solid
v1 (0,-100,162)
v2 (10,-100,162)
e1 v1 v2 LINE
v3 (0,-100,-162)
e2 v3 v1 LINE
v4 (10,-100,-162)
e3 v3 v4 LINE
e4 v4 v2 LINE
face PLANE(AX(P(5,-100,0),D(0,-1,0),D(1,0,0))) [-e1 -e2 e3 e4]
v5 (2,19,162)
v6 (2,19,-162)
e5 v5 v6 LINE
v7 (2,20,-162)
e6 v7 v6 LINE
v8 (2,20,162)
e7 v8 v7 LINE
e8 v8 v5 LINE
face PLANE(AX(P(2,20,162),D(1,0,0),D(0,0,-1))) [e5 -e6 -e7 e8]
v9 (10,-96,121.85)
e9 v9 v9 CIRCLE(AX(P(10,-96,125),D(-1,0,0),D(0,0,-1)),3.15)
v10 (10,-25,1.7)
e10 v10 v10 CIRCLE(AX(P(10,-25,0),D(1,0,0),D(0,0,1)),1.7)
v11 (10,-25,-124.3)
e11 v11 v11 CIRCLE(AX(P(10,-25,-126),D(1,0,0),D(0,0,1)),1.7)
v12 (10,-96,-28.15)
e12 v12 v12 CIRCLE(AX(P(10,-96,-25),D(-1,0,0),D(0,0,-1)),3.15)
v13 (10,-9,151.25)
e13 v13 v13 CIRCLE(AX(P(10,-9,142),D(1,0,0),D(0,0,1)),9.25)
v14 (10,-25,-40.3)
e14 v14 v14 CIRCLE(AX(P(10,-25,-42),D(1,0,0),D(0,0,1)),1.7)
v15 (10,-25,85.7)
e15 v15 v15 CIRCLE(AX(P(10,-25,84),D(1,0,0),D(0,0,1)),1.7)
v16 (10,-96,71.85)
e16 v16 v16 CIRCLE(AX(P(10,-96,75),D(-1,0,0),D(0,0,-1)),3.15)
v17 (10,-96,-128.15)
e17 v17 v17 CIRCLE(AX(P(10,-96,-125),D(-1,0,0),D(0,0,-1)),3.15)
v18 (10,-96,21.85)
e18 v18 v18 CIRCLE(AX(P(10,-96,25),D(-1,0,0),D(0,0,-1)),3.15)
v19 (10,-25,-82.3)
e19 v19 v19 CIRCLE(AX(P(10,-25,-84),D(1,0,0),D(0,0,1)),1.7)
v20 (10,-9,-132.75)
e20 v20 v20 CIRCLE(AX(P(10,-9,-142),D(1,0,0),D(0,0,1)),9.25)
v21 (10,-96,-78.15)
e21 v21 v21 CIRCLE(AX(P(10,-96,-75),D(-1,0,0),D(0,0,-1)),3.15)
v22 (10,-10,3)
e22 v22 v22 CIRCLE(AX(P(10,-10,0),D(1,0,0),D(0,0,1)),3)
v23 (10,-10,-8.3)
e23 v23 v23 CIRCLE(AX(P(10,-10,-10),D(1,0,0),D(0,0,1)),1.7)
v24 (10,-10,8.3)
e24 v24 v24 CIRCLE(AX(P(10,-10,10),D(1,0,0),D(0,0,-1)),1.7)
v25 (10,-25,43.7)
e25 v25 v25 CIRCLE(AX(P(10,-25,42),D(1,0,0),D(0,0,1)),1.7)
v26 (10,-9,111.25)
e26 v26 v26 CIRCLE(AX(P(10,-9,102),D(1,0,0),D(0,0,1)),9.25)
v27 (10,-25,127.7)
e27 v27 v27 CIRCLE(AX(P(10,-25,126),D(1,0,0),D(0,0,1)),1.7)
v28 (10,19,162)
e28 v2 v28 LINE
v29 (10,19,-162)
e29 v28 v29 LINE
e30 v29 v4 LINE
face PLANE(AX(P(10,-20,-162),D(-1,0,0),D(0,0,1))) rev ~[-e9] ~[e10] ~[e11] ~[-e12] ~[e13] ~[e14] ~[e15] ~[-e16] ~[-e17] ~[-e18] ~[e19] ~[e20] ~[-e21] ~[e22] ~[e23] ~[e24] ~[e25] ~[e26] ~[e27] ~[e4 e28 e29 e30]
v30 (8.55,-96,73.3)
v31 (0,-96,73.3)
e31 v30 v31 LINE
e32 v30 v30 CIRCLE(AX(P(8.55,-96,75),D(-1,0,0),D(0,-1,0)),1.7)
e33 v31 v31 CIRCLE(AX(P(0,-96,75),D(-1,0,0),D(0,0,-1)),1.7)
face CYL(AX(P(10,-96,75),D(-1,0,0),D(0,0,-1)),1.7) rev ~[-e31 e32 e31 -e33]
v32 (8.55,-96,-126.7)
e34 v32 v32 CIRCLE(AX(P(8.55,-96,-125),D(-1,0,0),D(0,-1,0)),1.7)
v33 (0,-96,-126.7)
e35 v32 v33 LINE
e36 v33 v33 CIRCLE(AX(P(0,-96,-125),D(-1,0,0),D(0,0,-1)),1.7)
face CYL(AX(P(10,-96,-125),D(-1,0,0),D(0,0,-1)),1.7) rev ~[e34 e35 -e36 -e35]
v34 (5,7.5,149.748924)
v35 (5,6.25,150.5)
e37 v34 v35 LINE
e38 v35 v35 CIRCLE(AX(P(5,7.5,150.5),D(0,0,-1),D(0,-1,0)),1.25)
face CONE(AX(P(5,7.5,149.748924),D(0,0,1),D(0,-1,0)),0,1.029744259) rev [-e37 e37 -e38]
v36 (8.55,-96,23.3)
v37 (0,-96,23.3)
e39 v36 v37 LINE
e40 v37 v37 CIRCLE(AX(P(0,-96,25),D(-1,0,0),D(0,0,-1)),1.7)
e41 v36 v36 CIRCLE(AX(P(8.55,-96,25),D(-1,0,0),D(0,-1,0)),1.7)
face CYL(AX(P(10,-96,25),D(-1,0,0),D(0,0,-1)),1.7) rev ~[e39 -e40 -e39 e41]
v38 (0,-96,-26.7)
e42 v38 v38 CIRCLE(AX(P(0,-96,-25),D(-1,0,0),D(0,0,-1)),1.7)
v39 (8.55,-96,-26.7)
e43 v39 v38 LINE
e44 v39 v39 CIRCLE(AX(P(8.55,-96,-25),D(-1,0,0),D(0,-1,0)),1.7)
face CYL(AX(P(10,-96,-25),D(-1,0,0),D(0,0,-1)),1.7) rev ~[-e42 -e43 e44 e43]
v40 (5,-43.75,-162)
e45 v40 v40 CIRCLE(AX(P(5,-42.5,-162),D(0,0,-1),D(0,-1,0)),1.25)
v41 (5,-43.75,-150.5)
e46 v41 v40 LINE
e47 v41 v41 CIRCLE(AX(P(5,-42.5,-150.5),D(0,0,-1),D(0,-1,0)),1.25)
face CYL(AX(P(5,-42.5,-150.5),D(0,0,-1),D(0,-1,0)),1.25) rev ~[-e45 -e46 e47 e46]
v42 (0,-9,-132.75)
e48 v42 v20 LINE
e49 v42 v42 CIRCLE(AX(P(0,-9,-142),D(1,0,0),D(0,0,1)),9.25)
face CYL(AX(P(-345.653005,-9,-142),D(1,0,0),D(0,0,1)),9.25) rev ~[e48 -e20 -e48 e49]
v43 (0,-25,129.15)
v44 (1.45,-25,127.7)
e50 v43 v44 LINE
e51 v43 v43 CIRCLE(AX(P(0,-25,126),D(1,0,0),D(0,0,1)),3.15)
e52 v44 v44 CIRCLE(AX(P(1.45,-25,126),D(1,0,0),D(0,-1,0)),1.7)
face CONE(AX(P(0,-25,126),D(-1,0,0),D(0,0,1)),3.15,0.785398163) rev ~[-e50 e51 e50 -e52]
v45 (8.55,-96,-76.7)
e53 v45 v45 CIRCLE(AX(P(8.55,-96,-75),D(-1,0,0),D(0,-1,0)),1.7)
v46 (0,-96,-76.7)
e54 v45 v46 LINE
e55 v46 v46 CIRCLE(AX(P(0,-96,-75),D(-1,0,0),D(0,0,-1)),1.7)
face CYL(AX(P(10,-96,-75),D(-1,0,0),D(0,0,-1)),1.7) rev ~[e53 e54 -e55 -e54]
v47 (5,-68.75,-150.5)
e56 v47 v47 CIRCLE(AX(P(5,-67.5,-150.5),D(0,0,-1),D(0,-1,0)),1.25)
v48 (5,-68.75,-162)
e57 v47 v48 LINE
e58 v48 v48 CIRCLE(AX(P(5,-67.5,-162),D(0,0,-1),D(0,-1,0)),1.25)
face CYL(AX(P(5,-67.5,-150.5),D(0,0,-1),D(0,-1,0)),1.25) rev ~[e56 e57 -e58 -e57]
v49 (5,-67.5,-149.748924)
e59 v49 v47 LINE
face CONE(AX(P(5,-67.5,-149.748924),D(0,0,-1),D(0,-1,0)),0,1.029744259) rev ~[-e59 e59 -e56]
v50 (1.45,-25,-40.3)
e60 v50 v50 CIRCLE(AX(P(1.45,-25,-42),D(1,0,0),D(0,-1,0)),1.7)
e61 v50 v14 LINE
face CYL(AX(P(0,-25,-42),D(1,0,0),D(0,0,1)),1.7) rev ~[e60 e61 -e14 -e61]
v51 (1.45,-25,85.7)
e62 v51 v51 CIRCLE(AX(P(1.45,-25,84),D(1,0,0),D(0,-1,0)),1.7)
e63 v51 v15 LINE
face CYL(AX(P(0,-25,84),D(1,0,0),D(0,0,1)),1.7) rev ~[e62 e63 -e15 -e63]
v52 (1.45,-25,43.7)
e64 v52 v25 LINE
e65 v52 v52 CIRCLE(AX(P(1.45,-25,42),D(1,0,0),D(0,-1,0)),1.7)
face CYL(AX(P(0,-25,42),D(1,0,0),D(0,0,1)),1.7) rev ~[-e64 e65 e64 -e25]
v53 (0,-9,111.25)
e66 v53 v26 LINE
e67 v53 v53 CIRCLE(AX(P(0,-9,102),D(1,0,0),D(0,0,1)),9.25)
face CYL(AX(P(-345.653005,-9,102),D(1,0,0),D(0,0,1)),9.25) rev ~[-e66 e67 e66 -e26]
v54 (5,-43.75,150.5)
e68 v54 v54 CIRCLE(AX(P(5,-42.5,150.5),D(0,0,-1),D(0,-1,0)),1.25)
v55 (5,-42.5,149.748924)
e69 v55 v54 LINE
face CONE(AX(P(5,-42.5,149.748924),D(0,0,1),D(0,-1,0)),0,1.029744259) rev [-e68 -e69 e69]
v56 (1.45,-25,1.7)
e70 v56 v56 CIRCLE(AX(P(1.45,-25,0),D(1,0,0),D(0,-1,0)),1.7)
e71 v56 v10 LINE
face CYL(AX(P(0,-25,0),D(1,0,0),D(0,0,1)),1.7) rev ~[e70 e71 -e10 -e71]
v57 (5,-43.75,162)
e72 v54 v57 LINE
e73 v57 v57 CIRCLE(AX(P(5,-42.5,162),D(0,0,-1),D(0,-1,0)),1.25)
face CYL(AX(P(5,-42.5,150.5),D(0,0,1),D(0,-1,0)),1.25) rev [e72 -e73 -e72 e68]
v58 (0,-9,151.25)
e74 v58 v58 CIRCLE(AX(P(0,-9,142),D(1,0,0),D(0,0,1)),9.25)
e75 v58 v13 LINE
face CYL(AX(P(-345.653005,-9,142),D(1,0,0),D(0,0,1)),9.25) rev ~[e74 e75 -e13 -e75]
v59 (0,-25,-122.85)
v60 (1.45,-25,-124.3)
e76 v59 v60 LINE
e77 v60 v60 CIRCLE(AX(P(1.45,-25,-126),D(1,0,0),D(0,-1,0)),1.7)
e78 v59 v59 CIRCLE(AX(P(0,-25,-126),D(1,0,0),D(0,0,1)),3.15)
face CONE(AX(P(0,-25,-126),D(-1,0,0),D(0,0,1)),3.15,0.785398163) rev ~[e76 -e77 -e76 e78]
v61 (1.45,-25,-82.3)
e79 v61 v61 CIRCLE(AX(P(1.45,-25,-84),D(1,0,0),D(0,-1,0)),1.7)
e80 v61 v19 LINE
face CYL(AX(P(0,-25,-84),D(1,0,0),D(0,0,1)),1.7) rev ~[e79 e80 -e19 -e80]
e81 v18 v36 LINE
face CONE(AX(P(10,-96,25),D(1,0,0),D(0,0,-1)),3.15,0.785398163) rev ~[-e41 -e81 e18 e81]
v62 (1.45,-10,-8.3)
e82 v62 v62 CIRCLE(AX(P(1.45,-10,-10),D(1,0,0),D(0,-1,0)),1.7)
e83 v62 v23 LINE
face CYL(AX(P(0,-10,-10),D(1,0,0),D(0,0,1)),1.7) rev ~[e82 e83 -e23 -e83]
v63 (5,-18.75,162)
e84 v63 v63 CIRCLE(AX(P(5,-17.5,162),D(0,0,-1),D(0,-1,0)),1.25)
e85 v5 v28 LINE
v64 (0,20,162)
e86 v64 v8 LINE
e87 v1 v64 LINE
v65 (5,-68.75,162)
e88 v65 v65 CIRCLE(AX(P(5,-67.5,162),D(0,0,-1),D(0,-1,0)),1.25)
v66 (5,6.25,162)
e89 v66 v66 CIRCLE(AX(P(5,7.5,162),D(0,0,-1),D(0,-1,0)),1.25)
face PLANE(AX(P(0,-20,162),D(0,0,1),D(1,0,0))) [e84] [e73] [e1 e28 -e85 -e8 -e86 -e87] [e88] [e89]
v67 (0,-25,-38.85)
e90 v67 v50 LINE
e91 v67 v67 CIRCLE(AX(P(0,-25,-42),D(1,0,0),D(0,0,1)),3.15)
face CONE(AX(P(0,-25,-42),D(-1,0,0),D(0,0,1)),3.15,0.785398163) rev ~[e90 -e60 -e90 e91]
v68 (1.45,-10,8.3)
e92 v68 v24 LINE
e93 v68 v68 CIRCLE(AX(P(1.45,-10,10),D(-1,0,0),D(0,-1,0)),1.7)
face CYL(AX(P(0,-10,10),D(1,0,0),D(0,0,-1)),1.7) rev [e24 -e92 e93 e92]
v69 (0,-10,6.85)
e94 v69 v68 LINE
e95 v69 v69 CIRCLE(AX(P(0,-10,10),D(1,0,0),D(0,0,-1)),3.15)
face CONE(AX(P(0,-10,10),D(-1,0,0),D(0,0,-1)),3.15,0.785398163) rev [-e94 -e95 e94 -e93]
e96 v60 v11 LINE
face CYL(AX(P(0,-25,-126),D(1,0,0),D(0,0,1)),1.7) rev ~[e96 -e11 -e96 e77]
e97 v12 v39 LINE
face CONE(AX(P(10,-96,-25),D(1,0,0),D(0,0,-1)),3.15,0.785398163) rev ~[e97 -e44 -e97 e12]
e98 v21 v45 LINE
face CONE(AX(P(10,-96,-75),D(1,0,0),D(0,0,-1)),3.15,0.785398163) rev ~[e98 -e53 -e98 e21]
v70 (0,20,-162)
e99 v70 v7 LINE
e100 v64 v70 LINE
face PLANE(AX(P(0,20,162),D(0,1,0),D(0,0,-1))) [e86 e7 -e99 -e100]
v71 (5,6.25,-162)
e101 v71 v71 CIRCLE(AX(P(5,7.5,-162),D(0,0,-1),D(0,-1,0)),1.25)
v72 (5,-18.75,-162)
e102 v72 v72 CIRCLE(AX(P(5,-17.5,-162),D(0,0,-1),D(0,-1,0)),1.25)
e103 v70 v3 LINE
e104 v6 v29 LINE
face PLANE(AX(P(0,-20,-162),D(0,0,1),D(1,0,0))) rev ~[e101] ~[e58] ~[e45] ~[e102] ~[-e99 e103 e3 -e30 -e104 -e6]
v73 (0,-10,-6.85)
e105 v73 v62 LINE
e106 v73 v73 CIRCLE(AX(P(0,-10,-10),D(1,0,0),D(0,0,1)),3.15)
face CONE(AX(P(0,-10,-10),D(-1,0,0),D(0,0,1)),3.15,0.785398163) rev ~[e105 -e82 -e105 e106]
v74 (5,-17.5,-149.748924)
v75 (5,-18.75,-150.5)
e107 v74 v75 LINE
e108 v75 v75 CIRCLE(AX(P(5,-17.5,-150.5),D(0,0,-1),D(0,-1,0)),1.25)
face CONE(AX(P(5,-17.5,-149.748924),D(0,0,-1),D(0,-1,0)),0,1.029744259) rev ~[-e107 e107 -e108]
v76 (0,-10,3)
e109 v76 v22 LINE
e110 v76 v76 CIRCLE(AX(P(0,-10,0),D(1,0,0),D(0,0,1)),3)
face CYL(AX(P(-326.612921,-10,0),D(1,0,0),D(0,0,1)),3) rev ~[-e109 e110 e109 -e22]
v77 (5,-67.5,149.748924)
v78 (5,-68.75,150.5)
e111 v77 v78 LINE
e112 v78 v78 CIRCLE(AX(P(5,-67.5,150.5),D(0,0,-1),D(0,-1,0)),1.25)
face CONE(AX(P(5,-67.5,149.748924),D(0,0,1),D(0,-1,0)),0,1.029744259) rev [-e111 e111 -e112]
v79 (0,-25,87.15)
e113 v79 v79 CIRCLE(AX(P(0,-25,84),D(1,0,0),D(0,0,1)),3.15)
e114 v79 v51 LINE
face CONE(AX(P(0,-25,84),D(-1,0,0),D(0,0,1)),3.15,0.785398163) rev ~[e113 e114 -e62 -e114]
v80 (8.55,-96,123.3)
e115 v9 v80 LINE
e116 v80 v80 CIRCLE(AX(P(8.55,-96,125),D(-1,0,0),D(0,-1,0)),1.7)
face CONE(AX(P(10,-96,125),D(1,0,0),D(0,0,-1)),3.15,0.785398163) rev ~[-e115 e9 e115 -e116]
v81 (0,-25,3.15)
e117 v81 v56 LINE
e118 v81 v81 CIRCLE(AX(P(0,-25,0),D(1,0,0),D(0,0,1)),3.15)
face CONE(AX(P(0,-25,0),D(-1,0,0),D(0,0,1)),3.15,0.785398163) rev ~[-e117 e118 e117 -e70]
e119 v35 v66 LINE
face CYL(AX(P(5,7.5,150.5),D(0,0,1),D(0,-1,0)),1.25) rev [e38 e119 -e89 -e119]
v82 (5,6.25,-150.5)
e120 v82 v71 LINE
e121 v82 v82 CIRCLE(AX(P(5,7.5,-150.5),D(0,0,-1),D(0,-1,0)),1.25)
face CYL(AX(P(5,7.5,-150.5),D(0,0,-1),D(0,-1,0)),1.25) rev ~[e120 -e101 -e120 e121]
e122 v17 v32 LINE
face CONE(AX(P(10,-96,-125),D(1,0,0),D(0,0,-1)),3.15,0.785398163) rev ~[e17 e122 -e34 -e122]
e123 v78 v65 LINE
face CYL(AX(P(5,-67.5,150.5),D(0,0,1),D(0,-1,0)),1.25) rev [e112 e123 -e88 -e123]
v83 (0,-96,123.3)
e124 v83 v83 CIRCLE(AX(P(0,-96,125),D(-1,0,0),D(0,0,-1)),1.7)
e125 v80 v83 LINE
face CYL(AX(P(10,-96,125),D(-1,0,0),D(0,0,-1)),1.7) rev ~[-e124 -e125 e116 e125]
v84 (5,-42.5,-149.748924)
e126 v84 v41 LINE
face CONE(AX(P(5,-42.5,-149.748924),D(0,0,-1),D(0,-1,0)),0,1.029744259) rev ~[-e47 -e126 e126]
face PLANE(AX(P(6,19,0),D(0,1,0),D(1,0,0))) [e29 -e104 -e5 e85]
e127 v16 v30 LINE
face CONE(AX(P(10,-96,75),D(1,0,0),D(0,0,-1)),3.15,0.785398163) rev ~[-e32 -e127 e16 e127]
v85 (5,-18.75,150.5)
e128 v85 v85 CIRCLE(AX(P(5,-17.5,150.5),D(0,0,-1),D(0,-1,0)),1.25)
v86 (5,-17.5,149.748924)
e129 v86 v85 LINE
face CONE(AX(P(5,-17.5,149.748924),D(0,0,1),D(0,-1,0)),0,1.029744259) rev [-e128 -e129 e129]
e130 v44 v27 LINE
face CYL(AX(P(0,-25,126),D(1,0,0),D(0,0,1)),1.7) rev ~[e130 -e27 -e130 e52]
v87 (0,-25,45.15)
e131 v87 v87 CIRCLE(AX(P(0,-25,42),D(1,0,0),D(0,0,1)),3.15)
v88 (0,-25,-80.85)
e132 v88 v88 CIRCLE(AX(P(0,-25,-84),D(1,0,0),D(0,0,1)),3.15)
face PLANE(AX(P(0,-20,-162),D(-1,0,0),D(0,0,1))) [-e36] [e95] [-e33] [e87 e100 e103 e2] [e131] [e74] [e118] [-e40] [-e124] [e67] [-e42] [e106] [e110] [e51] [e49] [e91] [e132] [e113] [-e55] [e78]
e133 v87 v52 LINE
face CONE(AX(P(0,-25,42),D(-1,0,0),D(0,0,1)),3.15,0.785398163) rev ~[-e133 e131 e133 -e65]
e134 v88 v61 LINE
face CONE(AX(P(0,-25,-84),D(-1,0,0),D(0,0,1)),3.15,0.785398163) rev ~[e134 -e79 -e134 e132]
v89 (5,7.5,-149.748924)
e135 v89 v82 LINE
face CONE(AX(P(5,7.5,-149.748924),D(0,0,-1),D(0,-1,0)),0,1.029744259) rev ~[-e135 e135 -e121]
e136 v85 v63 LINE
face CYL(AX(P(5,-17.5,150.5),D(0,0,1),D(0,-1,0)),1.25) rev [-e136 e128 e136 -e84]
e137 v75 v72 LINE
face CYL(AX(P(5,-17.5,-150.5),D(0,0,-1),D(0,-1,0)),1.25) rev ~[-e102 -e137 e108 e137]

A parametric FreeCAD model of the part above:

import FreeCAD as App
import Part
import Sketcher
from FreeCAD import Vector
Q = App.Units.Quantity

doc = App.newDocument("Part")
body = doc.addObject("PartDesign::Body", "Body")

# Sketch on YZ plane
sketch1 = doc.addObject("Sketcher::SketchObject", "Sketch")
body.addObject(sketch1)
sketch1.AttachmentSupport = (doc.YZ_Plane, [""])
sketch1.MapMode = "FlatFace"
sketch1.addGeometry(Part.LineSegment(Vector(20, 162, 0), Vector(-20, 162, 0)), False)
sketch1.addGeometry(Part.LineSegment(Vector(-20, 162, 0), Vector(-20, -162, 0)), False)
sketch1.addGeometry(Part.LineSegment(Vector(-20, -162, 0), Vector(20, -162, 0)), False)
sketch1.addGeometry(Part.LineSegment(Vector(20, -162, 0), Vector(20, 162, 0)), False)
sketch1.addConstraint(Sketcher.Constraint("Coincident", 0, 2, 1, 1))
sketch1.addConstraint(Sketcher.Constraint("Coincident", 1, 2, 2, 1))
sketch1.addConstraint(Sketcher.Constraint("Coincident", 2, 2, 3, 1))
sketch1.addConstraint(Sketcher.Constraint("Coincident", 3, 2, 0, 1))
sketch1.addConstraint(Sketcher.Constraint("Horizontal", 0))
sketch1.addConstraint(Sketcher.Constraint("Vertical", 1))
sketch1.addConstraint(Sketcher.Constraint("Horizontal", 2))
sketch1.addConstraint(Sketcher.Constraint("Vertical", 3))
sketch1.addConstraint(Sketcher.Constraint("Symmetric", 0, 2, 2, 2, -1, 1))
sketch1.addConstraint(Sketcher.Constraint("DistanceX", 0, 2, 0, 1, 40.0))
sketch1.addConstraint(Sketcher.Constraint("DistanceY", 1, 2, 1, 1, 324.0))
pad1 = doc.addObject("PartDesign::Pad", "Pad")
body.addObject(pad1)
pad1.Profile = sketch1
pad1.Length = 10

# Sketch on YZ plane
sketch2 = doc.addObject("Sketcher::SketchObject", "Sketch001")
body.addObject(sketch2)
sketch2.AttachmentSupport = (doc.YZ_Plane, [""])
sketch2.MapMode = "FlatFace"
sketch2.addGeometry(Part.Circle(Vector(-10, 0, 0), Vector(0, 0, 1), 3), False)
sketch2.addConstraint(Sketcher.Constraint("PointOnObject", 0, 3, -1))
sketch2.addConstraint(Sketcher.Constraint("Diameter", 0, 6.0))
sketch2.addConstraint(Sketcher.Constraint("DistanceX", 0, 3, -1, 1, 10.0))
doc.recompute()
hole = doc.addObject("PartDesign::Hole", "Hole")
body.addObject(hole)
hole.Profile = sketch2
hole.ThreadType = "None"
hole.Diameter = 6
hole.DepthType = "ThroughAll"
hole.Reversed = True

# Sketch on YZ plane
sketch3 = doc.addObject("Sketcher::SketchObject", "Sketch002")
body.addObject(sketch3)
sketch3.AttachmentSupport = (doc.YZ_Plane, [""])
sketch3.MapMode = "FlatFace"
sketch3.addGeometry(Part.Circle(Vector(-10, -10, 0), Vector(0, 0, 1), 1.7), False)
sketch3.addConstraint(Sketcher.Constraint("Diameter", 0, 3.4))
sketch3.addConstraint(Sketcher.Constraint("DistanceX", 0, 3, -1, 1, 10.0))
sketch3.addConstraint(Sketcher.Constraint("DistanceY", 0, 3, -1, 1, 10.0))
doc.recompute()
hole2 = doc.addObject("PartDesign::Hole", "Hole001")
body.addObject(hole2)
hole2.Profile = sketch3
hole2.ThreadType = "None"
hole2.Diameter = 3.4
hole2.DepthType = "ThroughAll"
hole2.HoleCutType = "Countersink"
hole2.HoleCutDiameter = 6.3
hole2.HoleCutCountersinkAngle = 90
hole2.Reversed = True
doc.recompute()

mirrored = doc.addObject("PartDesign::Mirrored", "Mirrored")
body.addObject(mirrored)
mirrored.Originals = [hole2]
mirrored.MirrorPlane = (doc.XY_Plane, [""])
body.Tip = mirrored

# Sketch on XZ plane
sketch4 = doc.addObject("Sketcher::SketchObject", "Sketch003")
body.addObject(sketch4)
sketch4.AttachmentSupport = (doc.XZ_Plane, [""])
sketch4.MapMode = "FlatFace"
sketch4.AttachmentOffset = App.Placement(Vector(0, 0, 20), App.Rotation())
sketch4.addGeometry(Part.LineSegment(Vector(0, 162, 0), Vector(0, -162, 0)), False)
sketch4.addGeometry(Part.LineSegment(Vector(0, -162, 0), Vector(10, -162, 0)), False)
sketch4.addGeometry(Part.LineSegment(Vector(10, -162, 0), Vector(10, 162, 0)), False)
sketch4.addGeometry(Part.LineSegment(Vector(10, 162, 0), Vector(0, 162, 0)), False)
sketch4.addConstraint(Sketcher.Constraint("Coincident", 0, 2, 1, 1))
sketch4.addConstraint(Sketcher.Constraint("Coincident", 1, 2, 2, 1))
sketch4.addConstraint(Sketcher.Constraint("Coincident", 2, 2, 3, 1))
sketch4.addConstraint(Sketcher.Constraint("Coincident", 3, 2, 0, 1))
sketch4.addConstraint(Sketcher.Constraint("Vertical", 0))
sketch4.addConstraint(Sketcher.Constraint("Horizontal", 1))
sketch4.addConstraint(Sketcher.Constraint("Vertical", 2))
sketch4.addConstraint(Sketcher.Constraint("Horizontal", 3))
sketch4.addConstraint(Sketcher.Constraint("Symmetric", 0, 2, 3, 2, -1, 1))
sketch4.addConstraint(Sketcher.Constraint("DistanceX", 1, 1, 1, 2, 10.0))
sketch4.addConstraint(Sketcher.Constraint("DistanceY", 0, 2, 0, 1, 324.0))
pad2 = doc.addObject("PartDesign::Pad", "Pad001")
body.addObject(pad2)
pad2.Profile = sketch4
pad2.Length = 80

# Sketch on YZ plane
sketch5 = doc.addObject("Sketcher::SketchObject", "Sketch004")
body.addObject(sketch5)
sketch5.AttachmentSupport = (doc.YZ_Plane, [""])
sketch5.MapMode = "FlatFace"
sketch5.AttachmentOffset = App.Placement(Vector(0, 0, 10), App.Rotation())
sketch5.addGeometry(Part.Circle(Vector(-96, 125, 0), Vector(0, 0, 1), 1.7), False)
sketch5.addGeometry(Part.Circle(Vector(-96, 75, 0), Vector(0, 0, 1), 1.7), False)
sketch5.addGeometry(Part.Circle(Vector(-96, 25, 0), Vector(0, 0, 1), 1.7), False)
sketch5.addGeometry(Part.Circle(Vector(-96, -25, 0), Vector(0, 0, 1), 1.7), False)
sketch5.addGeometry(Part.Circle(Vector(-96, -75, 0), Vector(0, 0, 1), 1.7), False)
sketch5.addGeometry(Part.Circle(Vector(-96, -125, 0), Vector(0, 0, 1), 1.7), False)
sketch5.addConstraint(Sketcher.Constraint("Equal", 0, 1))
sketch5.addConstraint(Sketcher.Constraint("Equal", 1, 2))
sketch5.addConstraint(Sketcher.Constraint("Equal", 2, 3))
sketch5.addConstraint(Sketcher.Constraint("Equal", 3, 4))
sketch5.addConstraint(Sketcher.Constraint("Equal", 4, 5))
sketch5.addConstraint(Sketcher.Constraint("Symmetric", 2, 3, 3, 3, -1))
sketch5.addConstraint(Sketcher.Constraint("Symmetric", 1, 3, 4, 3, -1))
sketch5.addConstraint(Sketcher.Constraint("Symmetric", 0, 3, 5, 3, -1))
sketch5.addConstraint(Sketcher.Constraint("Vertical", 0, 3, 1, 3))
sketch5.addConstraint(Sketcher.Constraint("Vertical", 1, 3, 2, 3))
sketch5.addConstraint(Sketcher.Constraint("Diameter", 0, 3.4))
sketch5.addConstraint(Sketcher.Constraint("DistanceX", 0, 3, -1, 1, 96.0))
sketch5.addConstraint(Sketcher.Constraint("DistanceY", -1, 1, 0, 3, 125.0))
sketch5.addConstraint(Sketcher.Constraint("DistanceY", -1, 1, 1, 3, 75.0))
sketch5.addConstraint(Sketcher.Constraint("DistanceY", -1, 1, 2, 3, 25.0))
doc.recompute()
hole3 = doc.addObject("PartDesign::Hole", "Hole002")
body.addObject(hole3)
hole3.Profile = sketch5
hole3.ThreadType = "None"
hole3.Diameter = 3.4
hole3.DepthType = "Dimension"
hole3.Depth = 11.5
hole3.DrillPoint = "Angled"
hole3.DrillPointAngle = 118
hole3.HoleCutType = "Countersink"
hole3.HoleCutDiameter = 6.3
hole3.HoleCutCountersinkAngle = 90

# Sketch on YZ plane
sketch6 = doc.addObject("Sketcher::SketchObject", "Sketch005")
body.addObject(sketch6)
sketch6.AttachmentSupport = (doc.YZ_Plane, [""])
sketch6.MapMode = "FlatFace"
sketch6.AttachmentOffset = App.Placement(Vector(0, 0, 5), App.Rotation())
sketch6.addGeometry(Part.LineSegment(Vector(7.5, 149.7, 0), Vector(7.5, 162, 0)), False)
sketch6.addGeometry(Part.LineSegment(Vector(7.5, 162, 0), Vector(6.2, 162, 0)), False)
sketch6.addGeometry(Part.LineSegment(Vector(6.2, 162, 0), Vector(6.2, 150.5, 0)), False)
sketch6.addGeometry(Part.LineSegment(Vector(6.2, 150.5, 0), Vector(7.5, 149.7, 0)), False)
sketch6.addGeometry(Part.LineSegment(Vector(7.5, 162, 0), Vector(7.5, 149.7, 0)), True)  # axis
sketch6.addConstraint(Sketcher.Constraint("Coincident", 0, 2, 1, 1))
sketch6.addConstraint(Sketcher.Constraint("Coincident", 1, 2, 2, 1))
sketch6.addConstraint(Sketcher.Constraint("Coincident", 2, 2, 3, 1))
sketch6.addConstraint(Sketcher.Constraint("Coincident", 3, 2, 0, 1))
sketch6.addConstraint(Sketcher.Constraint("Vertical", 0))
sketch6.addConstraint(Sketcher.Constraint("Horizontal", 1))
sketch6.addConstraint(Sketcher.Constraint("Vertical", 2))
sketch6.addConstraint(Sketcher.Constraint("Vertical", 4))
sketch6.addConstraint(Sketcher.Constraint("Coincident", 4, 1, 0, 2))
sketch6.addConstraint(Sketcher.Constraint("Equal", 0, 4))
sketch6.addConstraint(Sketcher.Constraint("Angle", 3, Q("-31 deg")))
sketch6.addConstraint(Sketcher.Constraint("DistanceY", 2, 2, 2, 1, 11.5))
sketch6.addConstraint(Sketcher.Constraint("DistanceY", -1, 1, 0, 2, 162.0))
sketch6.addConstraint(Sketcher.Constraint("DistanceX", 1, 2, 1, 1, 1.25))
sketch6.addConstraint(Sketcher.Constraint("DistanceX", -1, 1, 0, 2, 7.5))
groove = doc.addObject("PartDesign::Groove", "Groove")
body.addObject(groove)
groove.Profile = sketch6
groove.ReferenceAxis = (sketch6, ["Axis0"])
groove.Angle = 360
doc.recompute()

linearpattern = doc.addObject("PartDesign::LinearPattern", "LinearPattern")
body.addObject(linearpattern)
linearpattern.Originals = [groove]
linearpattern.Direction = (doc.Y_Axis, [""])
linearpattern.Mode = "offset"
linearpattern.Offset = 25
linearpattern.Occurrences = 2
linearpattern.Reversed = True
body.Tip = linearpattern
doc.recompute()

linearpattern2 = doc.addObject("PartDesign::LinearPattern", "LinearPattern001")
body.addObject(linearpattern2)
linearpattern2.Originals = [groove]
linearpattern2.Direction = (doc.Y_Axis, [""])
linearpattern2.Mode = "offset"
linearpattern2.Offset = 50
linearpattern2.Occurrences = 2
linearpattern2.Reversed = True
body.Tip = linearpattern2
doc.recompute()

linearpattern3 = doc.addObject("PartDesign::LinearPattern", "LinearPattern002")
body.addObject(linearpattern3)
linearpattern3.Originals = [groove]
linearpattern3.Direction = (doc.Y_Axis, [""])
linearpattern3.Mode = "offset"
linearpattern3.Offset = 75
linearpattern3.Occurrences = 2
linearpattern3.Reversed = True
body.Tip = linearpattern3
doc.recompute()

mirrored2 = doc.addObject("PartDesign::Mirrored", "Mirrored001")
body.addObject(mirrored2)
mirrored2.Originals = [groove]
mirrored2.MirrorPlane = (doc.XY_Plane, [""])
body.Tip = mirrored2

# Sketch on YZ plane
sketch7 = doc.addObject("Sketcher::SketchObject", "Sketch006")
body.addObject(sketch7)
sketch7.AttachmentSupport = (doc.YZ_Plane, [""])
sketch7.MapMode = "FlatFace"
sketch7.AttachmentOffset = App.Placement(Vector(0, 0, 5), App.Rotation())
sketch7.addGeometry(Part.LineSegment(Vector(-17.5, -162, 0), Vector(-17.5, -149.7, 0)), False)
sketch7.addGeometry(Part.LineSegment(Vector(-17.5, -149.7, 0), Vector(-18.8, -150.5, 0)), False)
sketch7.addGeometry(Part.LineSegment(Vector(-18.8, -150.5, 0), Vector(-18.8, -162, 0)), False)
sketch7.addGeometry(Part.LineSegment(Vector(-18.8, -162, 0), Vector(-17.5, -162, 0)), False)
sketch7.addGeometry(Part.LineSegment(Vector(-17.5, -149.7, 0), Vector(-17.5, -162, 0)), True)  # axis
sketch7.addConstraint(Sketcher.Constraint("Coincident", 0, 2, 1, 1))
sketch7.addConstraint(Sketcher.Constraint("Coincident", 1, 2, 2, 1))
sketch7.addConstraint(Sketcher.Constraint("Coincident", 2, 2, 3, 1))
sketch7.addConstraint(Sketcher.Constraint("Coincident", 3, 2, 0, 1))
sketch7.addConstraint(Sketcher.Constraint("Vertical", 0))
sketch7.addConstraint(Sketcher.Constraint("Vertical", 2))
sketch7.addConstraint(Sketcher.Constraint("Horizontal", 3))
sketch7.addConstraint(Sketcher.Constraint("Vertical", 4))
sketch7.addConstraint(Sketcher.Constraint("Coincident", 4, 1, 0, 2))
sketch7.addConstraint(Sketcher.Constraint("Horizontal", 2, 2, 4, 2))
sketch7.addConstraint(Sketcher.Constraint("Angle", 1, Q("-149 deg")))
sketch7.addConstraint(Sketcher.Constraint("DistanceY", 2, 2, 2, 1, 11.5))
sketch7.addConstraint(Sketcher.Constraint("DistanceY", 2, 2, -1, 1, 162.0))
sketch7.addConstraint(Sketcher.Constraint("DistanceX", 3, 1, 3, 2, 1.25))
sketch7.addConstraint(Sketcher.Constraint("DistanceX", 0, 2, -1, 1, 17.5))
groove2 = doc.addObject("PartDesign::Groove", "Groove001")
body.addObject(groove2)
groove2.Profile = sketch7
groove2.ReferenceAxis = (sketch7, ["Axis0"])
groove2.Angle = 360

# Sketch on YZ plane
sketch8 = doc.addObject("Sketcher::SketchObject", "Sketch007")
body.addObject(sketch8)
sketch8.AttachmentSupport = (doc.YZ_Plane, [""])
sketch8.MapMode = "FlatFace"
sketch8.AttachmentOffset = App.Placement(Vector(0, 0, 5), App.Rotation())
sketch8.addGeometry(Part.LineSegment(Vector(-42.5, -162, 0), Vector(-42.5, -149.7, 0)), False)
sketch8.addGeometry(Part.LineSegment(Vector(-42.5, -149.7, 0), Vector(-43.8, -150.5, 0)), False)
sketch8.addGeometry(Part.LineSegment(Vector(-43.8, -150.5, 0), Vector(-43.8, -162, 0)), False)
sketch8.addGeometry(Part.LineSegment(Vector(-43.8, -162, 0), Vector(-42.5, -162, 0)), False)
sketch8.addGeometry(Part.LineSegment(Vector(-42.5, -149.7, 0), Vector(-42.5, -162, 0)), True)  # axis
sketch8.addConstraint(Sketcher.Constraint("Coincident", 0, 2, 1, 1))
sketch8.addConstraint(Sketcher.Constraint("Coincident", 1, 2, 2, 1))
sketch8.addConstraint(Sketcher.Constraint("Coincident", 2, 2, 3, 1))
sketch8.addConstraint(Sketcher.Constraint("Coincident", 3, 2, 0, 1))
sketch8.addConstraint(Sketcher.Constraint("Vertical", 0))
sketch8.addConstraint(Sketcher.Constraint("Vertical", 2))
sketch8.addConstraint(Sketcher.Constraint("Horizontal", 3))
sketch8.addConstraint(Sketcher.Constraint("Vertical", 4))
sketch8.addConstraint(Sketcher.Constraint("Coincident", 4, 1, 0, 2))
sketch8.addConstraint(Sketcher.Constraint("Horizontal", 2, 2, 4, 2))
sketch8.addConstraint(Sketcher.Constraint("Angle", 1, Q("-149 deg")))
sketch8.addConstraint(Sketcher.Constraint("DistanceY", 2, 2, 2, 1, 11.5))
sketch8.addConstraint(Sketcher.Constraint("DistanceY", 2, 2, -1, 1, 162.0))
sketch8.addConstraint(Sketcher.Constraint("DistanceX", 3, 1, 3, 2, 1.25))
sketch8.addConstraint(Sketcher.Constraint("DistanceX", 0, 2, -1, 1, 42.5))
groove3 = doc.addObject("PartDesign::Groove", "Groove002")
body.addObject(groove3)
groove3.Profile = sketch8
groove3.ReferenceAxis = (sketch8, ["Axis0"])
groove3.Angle = 360

# Sketch on YZ plane
sketch9 = doc.addObject("Sketcher::SketchObject", "Sketch008")
body.addObject(sketch9)
sketch9.AttachmentSupport = (doc.YZ_Plane, [""])
sketch9.MapMode = "FlatFace"
sketch9.AttachmentOffset = App.Placement(Vector(0, 0, 5), App.Rotation())
sketch9.addGeometry(Part.LineSegment(Vector(-67.5, -162, 0), Vector(-67.5, -149.7, 0)), False)
sketch9.addGeometry(Part.LineSegment(Vector(-67.5, -149.7, 0), Vector(-68.8, -150.5, 0)), False)
sketch9.addGeometry(Part.LineSegment(Vector(-68.8, -150.5, 0), Vector(-68.8, -162, 0)), False)
sketch9.addGeometry(Part.LineSegment(Vector(-68.8, -162, 0), Vector(-67.5, -162, 0)), False)
sketch9.addGeometry(Part.LineSegment(Vector(-67.5, -149.7, 0), Vector(-67.5, -162, 0)), True)  # axis
sketch9.addConstraint(Sketcher.Constraint("Coincident", 0, 2, 1, 1))
sketch9.addConstraint(Sketcher.Constraint("Coincident", 1, 2, 2, 1))
sketch9.addConstraint(Sketcher.Constraint("Coincident", 2, 2, 3, 1))
sketch9.addConstraint(Sketcher.Constraint("Coincident", 3, 2, 0, 1))
sketch9.addConstraint(Sketcher.Constraint("Vertical", 0))
sketch9.addConstraint(Sketcher.Constraint("Vertical", 2))
sketch9.addConstraint(Sketcher.Constraint("Horizontal", 3))
sketch9.addConstraint(Sketcher.Constraint("Vertical", 4))
sketch9.addConstraint(Sketcher.Constraint("Coincident", 4, 1, 0, 2))
sketch9.addConstraint(Sketcher.Constraint("Horizontal", 2, 2, 4, 2))
sketch9.addConstraint(Sketcher.Constraint("Angle", 1, Q("-149 deg")))
sketch9.addConstraint(Sketcher.Constraint("DistanceY", 2, 2, 2, 1, 11.5))
sketch9.addConstraint(Sketcher.Constraint("DistanceY", 2, 2, -1, 1, 162.0))
sketch9.addConstraint(Sketcher.Constraint("DistanceX", 3, 1, 3, 2, 1.25))
sketch9.addConstraint(Sketcher.Constraint("DistanceX", 0, 2, -1, 1, 67.5))
groove4 = doc.addObject("PartDesign::Groove", "Groove003")
body.addObject(groove4)
groove4.Profile = sketch9
groove4.ReferenceAxis = (sketch9, ["Axis0"])
groove4.Angle = 360

# Sketch on XZ plane
sketch10 = doc.addObject("Sketcher::SketchObject", "Sketch009")
body.addObject(sketch10)
sketch10.AttachmentSupport = (doc.XZ_Plane, [""])
sketch10.MapMode = "FlatFace"
sketch10.AttachmentOffset = App.Placement(Vector(0, 0, -20), App.Rotation())
sketch10.addGeometry(Part.LineSegment(Vector(2, -162, 0), Vector(2, 162, 0)), False)
sketch10.addGeometry(Part.LineSegment(Vector(2, 162, 0), Vector(10, 162, 0)), False)
sketch10.addGeometry(Part.LineSegment(Vector(10, 162, 0), Vector(10, -162, 0)), False)
sketch10.addGeometry(Part.LineSegment(Vector(10, -162, 0), Vector(2, -162, 0)), False)
sketch10.addConstraint(Sketcher.Constraint("Coincident", 0, 2, 1, 1))
sketch10.addConstraint(Sketcher.Constraint("Coincident", 1, 2, 2, 1))
sketch10.addConstraint(Sketcher.Constraint("Coincident", 2, 2, 3, 1))
sketch10.addConstraint(Sketcher.Constraint("Coincident", 3, 2, 0, 1))
sketch10.addConstraint(Sketcher.Constraint("Vertical", 0))
sketch10.addConstraint(Sketcher.Constraint("Horizontal", 1))
sketch10.addConstraint(Sketcher.Constraint("Vertical", 2))
sketch10.addConstraint(Sketcher.Constraint("Horizontal", 3))
sketch10.addConstraint(Sketcher.Constraint("DistanceX", 1, 1, 1, 2, 8.0))
sketch10.addConstraint(Sketcher.Constraint("DistanceY", 0, 1, 0, 2, 324.0))
sketch10.addConstraint(Sketcher.Constraint("DistanceX", -1, 1, 0, 2, 2.0))
sketch10.addConstraint(Sketcher.Constraint("DistanceY", -1, 1, 0, 2, 162.0))
pocket1 = doc.addObject("PartDesign::Pocket", "Pocket")
body.addObject(pocket1)
pocket1.Profile = sketch10
pocket1.Length = 1
pocket1.Reversed = True

# Sketch on YZ plane
sketch11 = doc.addObject("Sketcher::SketchObject", "Sketch010")
body.addObject(sketch11)
sketch11.AttachmentSupport = (doc.YZ_Plane, [""])
sketch11.MapMode = "FlatFace"
sketch11.addGeometry(Part.Circle(Vector(-25, 0, 0), Vector(0, 0, 1), 1.7), False)
sketch11.addConstraint(Sketcher.Constraint("PointOnObject", 0, 3, -1))
sketch11.addConstraint(Sketcher.Constraint("Diameter", 0, 3.4))
sketch11.addConstraint(Sketcher.Constraint("DistanceX", 0, 3, -1, 1, 25.0))
doc.recompute()
hole4 = doc.addObject("PartDesign::Hole", "Hole003")
body.addObject(hole4)
hole4.Profile = sketch11
hole4.ThreadType = "None"
hole4.Diameter = 3.4
hole4.DepthType = "ThroughAll"
hole4.HoleCutType = "Countersink"
hole4.HoleCutDiameter = 6.3
hole4.HoleCutCountersinkAngle = 90
hole4.Reversed = True
doc.recompute()

linearpattern4 = doc.addObject("PartDesign::LinearPattern", "LinearPattern003")
body.addObject(linearpattern4)
linearpattern4.Originals = [hole4]
linearpattern4.Direction = (doc.Z_Axis, [""])
linearpattern4.Mode = "offset"
linearpattern4.Offset = 42
linearpattern4.Occurrences = 4
body.Tip = linearpattern4
doc.recompute()

linearpattern5 = doc.addObject("PartDesign::LinearPattern", "LinearPattern004")
body.addObject(linearpattern5)
linearpattern5.Originals = [hole4]
linearpattern5.Direction = (doc.Z_Axis, [""])
linearpattern5.Mode = "offset"
linearpattern5.Offset = 42
linearpattern5.Occurrences = 4
linearpattern5.Reversed = True
body.Tip = linearpattern5

# Sketch on YZ plane
sketch12 = doc.addObject("Sketcher::SketchObject", "Sketch011")
body.addObject(sketch12)
sketch12.AttachmentSupport = (doc.YZ_Plane, [""])
sketch12.MapMode = "FlatFace"
sketch12.addGeometry(Part.Circle(Vector(-9, 142, 0), Vector(0, 0, 1), 9), False)
sketch12.addGeometry(Part.Circle(Vector(-9, -142, 0), Vector(0, 0, 1), 9), False)
sketch12.addGeometry(Part.Circle(Vector(-9, 102, 0), Vector(0, 0, 1), 9), False)
sketch12.addConstraint(Sketcher.Constraint("Equal", 0, 1))
sketch12.addConstraint(Sketcher.Constraint("Equal", 1, 2))
sketch12.addConstraint(Sketcher.Constraint("Symmetric", 0, 3, 1, 3, -1))
sketch12.addConstraint(Sketcher.Constraint("Vertical", 1, 3, 2, 3))
sketch12.addConstraint(Sketcher.Constraint("Diameter", 0, 18.5))
sketch12.addConstraint(Sketcher.Constraint("DistanceX", 0, 3, -1, 1, 9.0))
sketch12.addConstraint(Sketcher.Constraint("DistanceY", -1, 1, 0, 3, 142.0))
sketch12.addConstraint(Sketcher.Constraint("DistanceY", -1, 1, 2, 3, 102.0))
doc.recompute()
hole5 = doc.addObject("PartDesign::Hole", "Hole004")
body.addObject(hole5)
hole5.Profile = sketch12
hole5.ThreadType = "None"
hole5.Diameter = 18.5
hole5.DepthType = "ThroughAll"
hole5.Reversed = True

doc.recompute()
